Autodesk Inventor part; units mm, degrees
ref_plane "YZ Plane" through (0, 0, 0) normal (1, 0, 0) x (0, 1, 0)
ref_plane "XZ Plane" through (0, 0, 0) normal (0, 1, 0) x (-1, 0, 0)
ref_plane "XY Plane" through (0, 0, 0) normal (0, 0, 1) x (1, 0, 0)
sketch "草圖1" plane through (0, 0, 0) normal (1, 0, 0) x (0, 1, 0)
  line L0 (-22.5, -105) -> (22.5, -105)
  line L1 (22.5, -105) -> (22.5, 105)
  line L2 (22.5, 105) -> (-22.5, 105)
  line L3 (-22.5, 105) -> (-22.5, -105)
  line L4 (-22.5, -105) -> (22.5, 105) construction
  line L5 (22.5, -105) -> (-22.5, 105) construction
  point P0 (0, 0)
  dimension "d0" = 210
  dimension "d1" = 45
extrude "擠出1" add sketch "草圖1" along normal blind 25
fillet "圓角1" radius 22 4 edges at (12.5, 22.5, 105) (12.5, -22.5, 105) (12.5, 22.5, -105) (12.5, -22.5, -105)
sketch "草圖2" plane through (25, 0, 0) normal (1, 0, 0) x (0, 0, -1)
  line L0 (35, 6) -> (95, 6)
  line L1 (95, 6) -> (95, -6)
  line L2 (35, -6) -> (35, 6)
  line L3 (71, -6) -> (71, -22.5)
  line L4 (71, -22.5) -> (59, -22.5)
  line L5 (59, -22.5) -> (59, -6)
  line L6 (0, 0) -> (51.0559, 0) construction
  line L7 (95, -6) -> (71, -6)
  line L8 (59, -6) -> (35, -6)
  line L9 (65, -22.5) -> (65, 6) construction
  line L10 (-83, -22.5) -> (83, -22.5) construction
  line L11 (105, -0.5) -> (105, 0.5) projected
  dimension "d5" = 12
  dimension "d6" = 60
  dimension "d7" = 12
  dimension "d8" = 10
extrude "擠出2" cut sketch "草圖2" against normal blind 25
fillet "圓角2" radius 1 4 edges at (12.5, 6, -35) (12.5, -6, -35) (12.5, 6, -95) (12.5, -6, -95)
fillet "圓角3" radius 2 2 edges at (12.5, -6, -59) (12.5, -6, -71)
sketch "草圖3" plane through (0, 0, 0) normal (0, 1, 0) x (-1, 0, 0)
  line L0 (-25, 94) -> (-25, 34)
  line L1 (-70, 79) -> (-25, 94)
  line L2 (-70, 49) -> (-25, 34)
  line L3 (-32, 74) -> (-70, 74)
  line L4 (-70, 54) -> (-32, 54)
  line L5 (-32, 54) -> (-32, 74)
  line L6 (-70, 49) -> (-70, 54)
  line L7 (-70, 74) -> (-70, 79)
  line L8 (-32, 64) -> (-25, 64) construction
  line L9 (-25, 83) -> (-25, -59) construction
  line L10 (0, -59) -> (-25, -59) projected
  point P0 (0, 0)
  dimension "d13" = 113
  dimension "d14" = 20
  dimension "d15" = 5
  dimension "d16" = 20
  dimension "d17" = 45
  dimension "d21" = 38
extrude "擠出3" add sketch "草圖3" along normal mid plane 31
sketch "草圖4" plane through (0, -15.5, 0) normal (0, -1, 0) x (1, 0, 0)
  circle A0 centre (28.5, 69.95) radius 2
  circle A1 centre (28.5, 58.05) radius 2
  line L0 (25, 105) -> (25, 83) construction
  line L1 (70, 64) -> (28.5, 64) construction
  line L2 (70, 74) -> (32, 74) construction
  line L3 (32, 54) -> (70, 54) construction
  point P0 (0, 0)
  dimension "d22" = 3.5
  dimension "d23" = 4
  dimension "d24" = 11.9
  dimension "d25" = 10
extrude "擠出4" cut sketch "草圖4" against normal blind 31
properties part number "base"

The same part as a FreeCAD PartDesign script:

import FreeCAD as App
import Part
import Sketcher

V = App.Vector
Q = App.Units.Quantity


def edges_at(feature, points):
    """Names of the edges that pass closest to the given points."""
    edges = feature.Shape.Edges
    near = lambda p: min(range(len(edges)), key=lambda i: edges[i].distToShape(Part.Vertex(*p))[0])
    return sorted({f"Edge{near(p) + 1}" for p in points})

doc = App.newDocument("Part")
params = doc.addObject("Spreadsheet::Sheet", "Params")
for row, (alias, value) in enumerate([
    ("sketch1_width", "45 mm"),
    ("sketch1_height", "210 mm"),
    ("pad1_length", "25 mm"),
    ("fillet_radius", "22 mm"),
    ("sketch2_width", "12 mm"),
    ("sketch2_height", "60 mm"),
    ("sketch2_width2", "16.5 mm"),
    ("pocket1_length", "25 mm"),
    ("fillet2_radius", "1 mm"),
    ("fillet3_radius", "2 mm"),
    ("sketch3_width", "38 mm"),
    ("sketch3_height", "5 mm"),
    ("sketch3_height2", "20 mm"),
    ("pad2_length", "31 mm"),
    ("sketch4_diameter", "4 mm"),
    ("pocket2_length", "31 mm"),
], start=1):
    params.set(f"A{row}", alias)
    params.set(f"B{row}", "=" + value)
    params.setAlias(f"B{row}", alias)

body = doc.addObject("PartDesign::Body", "Body")

# Sketch on YZ plane
sketch1 = body.newObject("Sketcher::SketchObject", "Sketch")
sketch1.AttachmentSupport = (doc.getObject("YZ_Plane"), [""])
sketch1.MapMode = "FlatFace"
sketch1.addGeometry([
    Part.LineSegment(V(-22, 105, 0), V(-22, -105, 0)),
    Part.LineSegment(V(-22, -105, 0), V(22, -105, 0)),
    Part.LineSegment(V(22, -105, 0), V(22, 105, 0)),
    Part.LineSegment(V(22, 105, 0), V(-22, 105, 0)),
], False)
sketch1.addConstraint([
    Sketcher.Constraint("Coincident", 0, 2, 1, 1),
    Sketcher.Constraint("Coincident", 1, 2, 2, 1),
    Sketcher.Constraint("Coincident", 2, 2, 3, 1),
    Sketcher.Constraint("Coincident", 3, 2, 0, 1),
    Sketcher.Constraint("Vertical", 0),
    Sketcher.Constraint("Horizontal", 1),
    Sketcher.Constraint("Vertical", 2),
    Sketcher.Constraint("Horizontal", 3),
    Sketcher.Constraint("Symmetric", 0, 2, 2, 2, -1, 1),
    Sketcher.Constraint("DistanceX", 1, 1, 1, 2, Q("45 mm")),
    Sketcher.Constraint("DistanceY", 0, 2, 0, 1, Q("210 mm")),
])
sketch1.setExpression("Constraints[9]", "Params.sketch1_width")
sketch1.setExpression("Constraints[10]", "Params.sketch1_height")
pad1 = body.newObject("PartDesign::Pad", "Pad")
pad1.Profile = sketch1
pad1.setExpression("Length", "Params.pad1_length")
doc.recompute()

fillet = body.newObject("PartDesign::Fillet", "Fillet")
fillet.Base = (pad1, edges_at(pad1, [
    (12.5, 22.5, 105),
    (12.5, -22.5, 105),
    (12.5, 22.5, -105),
    (12.5, -22.5, -105),
]))
fillet.setExpression("Radius", "Params.fillet_radius")

# Sketch on YZ plane
sketch2 = body.newObject("Sketcher::SketchObject", "Sketch001")
sketch2.AttachmentSupport = (doc.getObject("YZ_Plane"), [""])
sketch2.MapMode = "FlatFace"
sketch2.AttachmentOffset = App.Placement(V(0, 0, 25), App.Rotation())
sketch2.addGeometry([
    Part.LineSegment(V(6, -95, 0), V(6, -35, 0)),  # 0
    Part.LineSegment(V(6, -35, 0), V(-6, -35, 0)),  # 1
    Part.LineSegment(V(-6, -35, 0), V(-6, -59, 0)),  # 2
    Part.LineSegment(V(-6, -59, 0), V(-22, -59, 0)),  # 3
    Part.LineSegment(V(-22, -59, 0), V(-22, -71, 0)),  # 4
    Part.LineSegment(V(-22, -71, 0), V(-6, -71, 0)),  # 5
    Part.LineSegment(V(-6, -71, 0), V(-6, -95, 0)),  # 6
    Part.LineSegment(V(-6, -95, 0), V(6, -95, 0)),  # 7
], False)
sketch2.addConstraint([
    Sketcher.Constraint("Coincident", 0, 2, 1, 1),
    Sketcher.Constraint("Coincident", 1, 2, 2, 1),
    Sketcher.Constraint("Coincident", 2, 2, 3, 1),
    Sketcher.Constraint("Coincident", 3, 2, 4, 1),
    Sketcher.Constraint("Coincident", 4, 2, 5, 1),
    Sketcher.Constraint("Coincident", 5, 2, 6, 1),
    Sketcher.Constraint("Coincident", 6, 2, 7, 1),
    Sketcher.Constraint("Coincident", 7, 2, 0, 1),
    Sketcher.Constraint("Vertical", 0),
    Sketcher.Constraint("Horizontal", 1),
    Sketcher.Constraint("Vertical", 2),
    Sketcher.Constraint("Horizontal", 3),
    Sketcher.Constraint("Vertical", 4),
    Sketcher.Constraint("Horizontal", 5),
    Sketcher.Constraint("Vertical", 6),
    Sketcher.Constraint("Horizontal", 7),
    Sketcher.Constraint("Vertical", 2, 2, 5, 2),
    Sketcher.Constraint("Equal", 7, 4),
    Sketcher.Constraint("Equal", 2, 6),
    Sketcher.Constraint("DistanceX", 1, 2, 1, 1, Q("12 mm")),
    Sketcher.Constraint("DistanceY", 0, 1, 0, 2, Q("60 mm")),
    Sketcher.Constraint("DistanceX", 3, 2, 3, 1, Q("16.5 mm")),
    Sketcher.Constraint("DistanceX", -1, 1, 0, 2, Q("6 mm")),
    Sketcher.Constraint("DistanceY", 0, 2, -1, 1, Q("35 mm")),
])
sketch2.setExpression("Constraints[19]", "Params.sketch2_width")
sketch2.setExpression("Constraints[20]", "Params.sketch2_height")
sketch2.setExpression("Constraints[21]", "Params.sketch2_width2")
pocket1 = body.newObject("PartDesign::Pocket", "Pocket")
pocket1.Profile = sketch2
pocket1.setExpression("Length", "Params.pocket1_length")
doc.recompute()

fillet2 = body.newObject("PartDesign::Fillet", "Fillet001")
fillet2.Base = (pocket1, edges_at(pocket1, [
    (12.5, 6, -35),
    (12.5, -6, -35),
    (12.5, 6, -95),
    (12.5, -6, -95),
]))
fillet2.setExpression("Radius", "Params.fillet2_radius")
doc.recompute()

fillet3 = body.newObject("PartDesign::Fillet", "Fillet002")
fillet3.Base = (fillet2, edges_at(fillet2, [(12.5, -6, -59), (12.5, -6, -71)]))
fillet3.setExpression("Radius", "Params.fillet3_radius")

# Sketch on XZ plane
sketch3 = body.newObject("Sketcher::SketchObject", "Sketch002")
sketch3.AttachmentSupport = (doc.getObject("XZ_Plane"), [""])
sketch3.MapMode = "FlatFace"
sketch3.addGeometry([
    Part.LineSegment(V(25, 34, 0), V(25, 94, 0)),  # 0
    Part.LineSegment(V(25, 94, 0), V(70, 79, 0)),  # 1
    Part.LineSegment(V(70, 79, 0), V(70, 74, 0)),  # 2
    Part.LineSegment(V(70, 74, 0), V(32, 74, 0)),  # 3
    Part.LineSegment(V(32, 74, 0), V(32, 54, 0)),  # 4
    Part.LineSegment(V(32, 54, 0), V(70, 54, 0)),  # 5
    Part.LineSegment(V(70, 54, 0), V(70, 49, 0)),  # 6
    Part.LineSegment(V(70, 49, 0), V(25, 34, 0)),  # 7
], False)
sketch3.addConstraint([
    Sketcher.Constraint("Coincident", 0, 2, 1, 1),
    Sketcher.Constraint("Coincident", 1, 2, 2, 1),
    Sketcher.Constraint("Coincident", 2, 2, 3, 1),
    Sketcher.Constraint("Coincident", 3, 2, 4, 1),
    Sketcher.Constraint("Coincident", 4, 2, 5, 1),
    Sketcher.Constraint("Coincident", 5, 2, 6, 1),
    Sketcher.Constraint("Coincident", 6, 2, 7, 1),
    Sketcher.Constraint("Coincident", 7, 2, 0, 1),
    Sketcher.Constraint("Vertical", 0),
    Sketcher.Constraint("Vertical", 2),
    Sketcher.Constraint("Horizontal", 3),
    Sketcher.Constraint("Vertical", 4),
    Sketcher.Constraint("Horizontal", 5),
    Sketcher.Constraint("Vertical", 6),
    Sketcher.Constraint("Vertical", 2, 2, 5, 2),
    Sketcher.Constraint("Equal", 2, 6),
    Sketcher.Constraint("Equal", 1, 7),
    Sketcher.Constraint("DistanceX", 3, 2, 3, 1, Q("38 mm")),
    Sketcher.Constraint("DistanceY", 2, 2, 2, 1, Q("5 mm")),
    Sketcher.Constraint("DistanceY", 4, 2, 4, 1, Q("20 mm")),
    Sketcher.Constraint("DistanceX", 0, 2, 1, 2, Q("45 mm")),
    Sketcher.Constraint("DistanceY", 2, 2, 0, 2, Q("20 mm")),
    Sketcher.Constraint("DistanceX", -1, 1, 0, 2, Q("25 mm")),
    Sketcher.Constraint("DistanceY", -1, 1, 0, 2, Q("94 mm")),
])
sketch3.setExpression("Constraints[17]", "Params.sketch3_width")
sketch3.setExpression("Constraints[18]", "Params.sketch3_height")
sketch3.setExpression("Constraints[19]", "Params.sketch3_height2")
pad2 = body.newObject("PartDesign::Pad", "Pad001")
pad2.Profile = sketch3
pad2.setExpression("Length", "Params.pad2_length")
pad2.Midplane = True

# Sketch on XZ plane
sketch4 = body.newObject("Sketcher::SketchObject", "Sketch003")
sketch4.AttachmentSupport = (doc.getObject("XZ_Plane"), [""])
sketch4.MapMode = "FlatFace"
sketch4.AttachmentOffset = App.Placement(V(0, 0, 15.5), App.Rotation())
sketch4.addGeometry([
    Part.Circle(V(28.5, 70, 0), V(0, 0, 1), 2),
    Part.Circle(V(28.5, 58, 0), V(0, 0, 1), 2),
], False)
sketch4.addConstraint([
    Sketcher.Constraint("Equal", 0, 1),
    Sketcher.Constraint("Vertical", 0, 3, 1, 3),
    Sketcher.Constraint("Diameter", 0, Q("4 mm")),
    Sketcher.Constraint("DistanceY", 1, 3, 0, 3, Q("11.9 mm")),
    Sketcher.Constraint("DistanceX", -1, 1, 0, 3, Q("28.5 mm")),
    Sketcher.Constraint("DistanceY", -1, 1, 0, 3, Q("69.95 mm")),
])
sketch4.setExpression("Constraints[2]", "Params.sketch4_diameter")
pocket2 = body.newObject("PartDesign::Pocket", "Pocket001")
pocket2.Profile = sketch4
pocket2.setExpression("Length", "Params.pocket2_length")

doc.recompute()
